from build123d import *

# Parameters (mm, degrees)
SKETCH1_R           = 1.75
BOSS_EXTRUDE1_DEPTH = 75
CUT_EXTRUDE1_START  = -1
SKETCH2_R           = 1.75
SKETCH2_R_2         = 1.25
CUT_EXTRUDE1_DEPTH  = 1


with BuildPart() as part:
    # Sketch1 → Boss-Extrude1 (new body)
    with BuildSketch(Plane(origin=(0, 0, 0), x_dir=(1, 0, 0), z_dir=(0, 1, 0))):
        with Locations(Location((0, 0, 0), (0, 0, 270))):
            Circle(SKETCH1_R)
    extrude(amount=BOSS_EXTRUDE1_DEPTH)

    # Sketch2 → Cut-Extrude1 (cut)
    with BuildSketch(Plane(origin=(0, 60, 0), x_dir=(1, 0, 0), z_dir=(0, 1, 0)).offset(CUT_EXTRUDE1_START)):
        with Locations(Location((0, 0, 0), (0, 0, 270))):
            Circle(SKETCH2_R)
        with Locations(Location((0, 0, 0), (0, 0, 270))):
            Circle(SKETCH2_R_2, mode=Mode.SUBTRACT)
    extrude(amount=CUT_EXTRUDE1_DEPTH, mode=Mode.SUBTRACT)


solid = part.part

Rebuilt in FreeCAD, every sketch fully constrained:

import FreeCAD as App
import Part
import Sketcher

doc = App.newDocument("Part")
body = doc.addObject("PartDesign::Body", "Body")

# Sketch on XZ plane
sketch1 = body.newObject("Sketcher::SketchObject", "Sketch")
sketch1.AttachmentSupport = (doc.getObject("XZ_Plane"), [""])
sketch1.MapMode = "FlatFace"
sketch1.addGeometry(Part.Circle(App.Vector(0, 0, 0), App.Vector(0, 0, 1), 1.75), False)
sketch1.addConstraint(Sketcher.Constraint("Coincident", 0, 3, -1, 1))
sketch1.addConstraint(Sketcher.Constraint("Diameter", 0, 3.5))
pad1 = body.newObject("PartDesign::Pad", "Pad")
pad1.Profile = sketch1
pad1.Length = 75
pad1.Reversed = True

# Sketch on XZ plane
sketch2 = body.newObject("Sketcher::SketchObject", "Sketch001")
sketch2.AttachmentSupport = (doc.getObject("XZ_Plane"), [""])
sketch2.MapMode = "FlatFace"
sketch2.AttachmentOffset = App.Placement(App.Vector(0, 0, -59), App.Rotation())
sketch2.addGeometry(Part.Circle(App.Vector(0, 0, 0), App.Vector(0, 0, 1), 1.75), False)
sketch2.addGeometry(Part.Circle(App.Vector(0, 0, 0), App.Vector(0, 0, 1), 1.25), False)
sketch2.addConstraint(Sketcher.Constraint("Coincident", 0, 3, -1, 1))
sketch2.addConstraint(Sketcher.Constraint("Coincident", 1, 3, -1, 1))
sketch2.addConstraint(Sketcher.Constraint("Diameter", 0, 3.5))
sketch2.addConstraint(Sketcher.Constraint("Diameter", 1, 2.5))
pocket1 = body.newObject("PartDesign::Pocket", "Pocket")
pocket1.Profile = sketch2
pocket1.Length = 1

doc.recompute()
